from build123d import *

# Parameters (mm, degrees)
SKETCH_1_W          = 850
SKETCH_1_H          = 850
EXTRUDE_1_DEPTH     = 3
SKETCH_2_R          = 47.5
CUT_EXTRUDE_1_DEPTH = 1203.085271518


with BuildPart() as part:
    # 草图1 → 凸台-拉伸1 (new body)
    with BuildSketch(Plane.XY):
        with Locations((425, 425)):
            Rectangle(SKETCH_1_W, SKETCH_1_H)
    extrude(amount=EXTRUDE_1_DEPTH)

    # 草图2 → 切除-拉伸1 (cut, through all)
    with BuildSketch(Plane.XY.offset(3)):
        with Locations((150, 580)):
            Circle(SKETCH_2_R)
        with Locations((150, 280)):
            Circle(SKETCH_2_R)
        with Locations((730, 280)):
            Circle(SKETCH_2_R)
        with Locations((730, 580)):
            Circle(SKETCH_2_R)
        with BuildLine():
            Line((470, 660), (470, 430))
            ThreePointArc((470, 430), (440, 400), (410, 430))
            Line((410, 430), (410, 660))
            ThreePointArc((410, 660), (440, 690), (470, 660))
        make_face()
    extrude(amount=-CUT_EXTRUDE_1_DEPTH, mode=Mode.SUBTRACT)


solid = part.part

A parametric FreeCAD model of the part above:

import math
import FreeCAD as App
import Part
import Sketcher

V = App.Vector


def add_polygon(sketch, points):
    """Adds a closed chain of lines whose ends are joined by coincident constraints."""
    first, n = sketch.GeometryCount, len(points)
    for a, b in zip(points, points[1:] + points[:1]):
        sketch.addGeometry(Part.LineSegment(App.Vector(*a, 0), App.Vector(*b, 0)), False)
    for i in range(n):
        sketch.addConstraint(Sketcher.Constraint("Coincident", first + i, 2, first + (i + 1) % n, 1))

doc = App.newDocument("Part")
params = doc.addObject("Spreadsheet::Sheet", "Params")
for row, (alias, value) in enumerate([
    ("sketch1_width", "850 mm"),
    ("pad1_length", "3 mm"),
    ("sketch2_diameter", "95 mm"),
    ("sketch2_radius", "30 mm"),
    ("sketch2_height", "230 mm"),
], start=1):
    params.set(f"A{row}", alias)
    params.set(f"B{row}", "=" + value)
    params.setAlias(f"B{row}", alias)

body = doc.addObject("PartDesign::Body", "Body")

# Sketch on XY plane
sketch1 = doc.addObject("Sketcher::SketchObject", "Sketch")
body.addObject(sketch1)
sketch1.AttachmentSupport = (doc.XY_Plane, [""])
sketch1.MapMode = "FlatFace"
add_polygon(sketch1, [(0, 850), (0, 0), (850, 0), (850, 850)])  # lines 0-3
sketch1.addConstraint(Sketcher.Constraint("Vertical", 0))
sketch1.addConstraint(Sketcher.Constraint("Horizontal", 1))
sketch1.addConstraint(Sketcher.Constraint("Vertical", 2))
sketch1.addConstraint(Sketcher.Constraint("Horizontal", 3))
sketch1.addConstraint(Sketcher.Constraint("Coincident", 0, 2, -1, 1))
sketch1.addConstraint(Sketcher.Constraint("Equal", 3, 0))
sketch1.addConstraint(Sketcher.Constraint("DistanceX", 1, 1, 1, 2, 850.0))
sketch1.setExpression("Constraints[10]", "Params.sketch1_width")
pad1 = doc.addObject("PartDesign::Pad", "Pad")
body.addObject(pad1)
pad1.Profile = sketch1
pad1.setExpression("Length", "Params.pad1_length")

# Sketch on XY plane
sketch2 = doc.addObject("Sketcher::SketchObject", "Sketch001")
body.addObject(sketch2)
sketch2.AttachmentSupport = (doc.XY_Plane, [""])
sketch2.MapMode = "FlatFace"
sketch2.AttachmentOffset = App.Placement(V(0, 0, 3), App.Rotation())
sketch2.addGeometry(Part.Circle(V(150, 580, 0), V(0, 0, 1), 47.5), False)
sketch2.addGeometry(Part.Circle(V(150, 280, 0), V(0, 0, 1), 47.5), False)
sketch2.addGeometry(Part.Circle(V(730, 280, 0), V(0, 0, 1), 47.5), False)
sketch2.addGeometry(Part.Circle(V(730, 580, 0), V(0, 0, 1), 47.5), False)
sketch2.addGeometry(Part.LineSegment(V(470, 430, 0), V(470, 660, 0)), False)
sketch2.addGeometry(Part.ArcOfCircle(Part.Circle(V(440, 660, 0), V(0, 0, 1), 30), math.radians(0), math.radians(180)), False)
sketch2.addGeometry(Part.LineSegment(V(410, 660, 0), V(410, 430, 0)), False)
sketch2.addGeometry(Part.ArcOfCircle(Part.Circle(V(440, 430, 0), V(0, 0, 1), 30), math.radians(180), math.radians(360)), False)
sketch2.addConstraint(Sketcher.Constraint("Tangent", 4, 2, 5, 1))
sketch2.addConstraint(Sketcher.Constraint("Tangent", 5, 2, 6, 1))
sketch2.addConstraint(Sketcher.Constraint("Tangent", 6, 2, 7, 1))
sketch2.addConstraint(Sketcher.Constraint("Tangent", 7, 2, 4, 1))
sketch2.addConstraint(Sketcher.Constraint("Vertical", 4))
sketch2.addConstraint(Sketcher.Constraint("Vertical", 6))
sketch2.addConstraint(Sketcher.Constraint("Equal", 0, 1))
sketch2.addConstraint(Sketcher.Constraint("Equal", 1, 2))
sketch2.addConstraint(Sketcher.Constraint("Equal", 2, 3))
sketch2.addConstraint(Sketcher.Constraint("Horizontal", 1, 3, 2, 3))
sketch2.addConstraint(Sketcher.Constraint("Horizontal", 0, 3, 3, 3))
sketch2.addConstraint(Sketcher.Constraint("Vertical", 0, 3, 1, 3))
sketch2.addConstraint(Sketcher.Constraint("Vertical", 2, 3, 3, 3))
sketch2.addConstraint(Sketcher.Constraint("Diameter", 0, 95.0))
sketch2.addConstraint(Sketcher.Constraint("Radius", 5, 30.0))
sketch2.addConstraint(Sketcher.Constraint("DistanceY", 4, 1, 4, 2, 230.0))
sketch2.addConstraint(Sketcher.Constraint("DistanceX", -1, 1, 0, 3, 150.0))
sketch2.addConstraint(Sketcher.Constraint("DistanceY", -1, 1, 0, 3, 580.0))
sketch2.addConstraint(Sketcher.Constraint("DistanceY", -1, 1, 1, 3, 280.0))
sketch2.addConstraint(Sketcher.Constraint("DistanceX", -1, 1, 2, 3, 730.0))
sketch2.addConstraint(Sketcher.Constraint("DistanceX", -1, 1, 5, 3, 440.0))
sketch2.addConstraint(Sketcher.Constraint("DistanceY", -1, 1, 5, 3, 660.0))
sketch2.setExpression("Constraints[13]", "Params.sketch2_diameter")
sketch2.setExpression("Constraints[14]", "Params.sketch2_radius")
sketch2.setExpression("Constraints[15]", "Params.sketch2_height")
pocket1 = doc.addObject("PartDesign::Pocket", "Pocket")
body.addObject(pocket1)
pocket1.Profile = sketch2
pocket1.Type = "ThroughAll"

doc.recompute()
